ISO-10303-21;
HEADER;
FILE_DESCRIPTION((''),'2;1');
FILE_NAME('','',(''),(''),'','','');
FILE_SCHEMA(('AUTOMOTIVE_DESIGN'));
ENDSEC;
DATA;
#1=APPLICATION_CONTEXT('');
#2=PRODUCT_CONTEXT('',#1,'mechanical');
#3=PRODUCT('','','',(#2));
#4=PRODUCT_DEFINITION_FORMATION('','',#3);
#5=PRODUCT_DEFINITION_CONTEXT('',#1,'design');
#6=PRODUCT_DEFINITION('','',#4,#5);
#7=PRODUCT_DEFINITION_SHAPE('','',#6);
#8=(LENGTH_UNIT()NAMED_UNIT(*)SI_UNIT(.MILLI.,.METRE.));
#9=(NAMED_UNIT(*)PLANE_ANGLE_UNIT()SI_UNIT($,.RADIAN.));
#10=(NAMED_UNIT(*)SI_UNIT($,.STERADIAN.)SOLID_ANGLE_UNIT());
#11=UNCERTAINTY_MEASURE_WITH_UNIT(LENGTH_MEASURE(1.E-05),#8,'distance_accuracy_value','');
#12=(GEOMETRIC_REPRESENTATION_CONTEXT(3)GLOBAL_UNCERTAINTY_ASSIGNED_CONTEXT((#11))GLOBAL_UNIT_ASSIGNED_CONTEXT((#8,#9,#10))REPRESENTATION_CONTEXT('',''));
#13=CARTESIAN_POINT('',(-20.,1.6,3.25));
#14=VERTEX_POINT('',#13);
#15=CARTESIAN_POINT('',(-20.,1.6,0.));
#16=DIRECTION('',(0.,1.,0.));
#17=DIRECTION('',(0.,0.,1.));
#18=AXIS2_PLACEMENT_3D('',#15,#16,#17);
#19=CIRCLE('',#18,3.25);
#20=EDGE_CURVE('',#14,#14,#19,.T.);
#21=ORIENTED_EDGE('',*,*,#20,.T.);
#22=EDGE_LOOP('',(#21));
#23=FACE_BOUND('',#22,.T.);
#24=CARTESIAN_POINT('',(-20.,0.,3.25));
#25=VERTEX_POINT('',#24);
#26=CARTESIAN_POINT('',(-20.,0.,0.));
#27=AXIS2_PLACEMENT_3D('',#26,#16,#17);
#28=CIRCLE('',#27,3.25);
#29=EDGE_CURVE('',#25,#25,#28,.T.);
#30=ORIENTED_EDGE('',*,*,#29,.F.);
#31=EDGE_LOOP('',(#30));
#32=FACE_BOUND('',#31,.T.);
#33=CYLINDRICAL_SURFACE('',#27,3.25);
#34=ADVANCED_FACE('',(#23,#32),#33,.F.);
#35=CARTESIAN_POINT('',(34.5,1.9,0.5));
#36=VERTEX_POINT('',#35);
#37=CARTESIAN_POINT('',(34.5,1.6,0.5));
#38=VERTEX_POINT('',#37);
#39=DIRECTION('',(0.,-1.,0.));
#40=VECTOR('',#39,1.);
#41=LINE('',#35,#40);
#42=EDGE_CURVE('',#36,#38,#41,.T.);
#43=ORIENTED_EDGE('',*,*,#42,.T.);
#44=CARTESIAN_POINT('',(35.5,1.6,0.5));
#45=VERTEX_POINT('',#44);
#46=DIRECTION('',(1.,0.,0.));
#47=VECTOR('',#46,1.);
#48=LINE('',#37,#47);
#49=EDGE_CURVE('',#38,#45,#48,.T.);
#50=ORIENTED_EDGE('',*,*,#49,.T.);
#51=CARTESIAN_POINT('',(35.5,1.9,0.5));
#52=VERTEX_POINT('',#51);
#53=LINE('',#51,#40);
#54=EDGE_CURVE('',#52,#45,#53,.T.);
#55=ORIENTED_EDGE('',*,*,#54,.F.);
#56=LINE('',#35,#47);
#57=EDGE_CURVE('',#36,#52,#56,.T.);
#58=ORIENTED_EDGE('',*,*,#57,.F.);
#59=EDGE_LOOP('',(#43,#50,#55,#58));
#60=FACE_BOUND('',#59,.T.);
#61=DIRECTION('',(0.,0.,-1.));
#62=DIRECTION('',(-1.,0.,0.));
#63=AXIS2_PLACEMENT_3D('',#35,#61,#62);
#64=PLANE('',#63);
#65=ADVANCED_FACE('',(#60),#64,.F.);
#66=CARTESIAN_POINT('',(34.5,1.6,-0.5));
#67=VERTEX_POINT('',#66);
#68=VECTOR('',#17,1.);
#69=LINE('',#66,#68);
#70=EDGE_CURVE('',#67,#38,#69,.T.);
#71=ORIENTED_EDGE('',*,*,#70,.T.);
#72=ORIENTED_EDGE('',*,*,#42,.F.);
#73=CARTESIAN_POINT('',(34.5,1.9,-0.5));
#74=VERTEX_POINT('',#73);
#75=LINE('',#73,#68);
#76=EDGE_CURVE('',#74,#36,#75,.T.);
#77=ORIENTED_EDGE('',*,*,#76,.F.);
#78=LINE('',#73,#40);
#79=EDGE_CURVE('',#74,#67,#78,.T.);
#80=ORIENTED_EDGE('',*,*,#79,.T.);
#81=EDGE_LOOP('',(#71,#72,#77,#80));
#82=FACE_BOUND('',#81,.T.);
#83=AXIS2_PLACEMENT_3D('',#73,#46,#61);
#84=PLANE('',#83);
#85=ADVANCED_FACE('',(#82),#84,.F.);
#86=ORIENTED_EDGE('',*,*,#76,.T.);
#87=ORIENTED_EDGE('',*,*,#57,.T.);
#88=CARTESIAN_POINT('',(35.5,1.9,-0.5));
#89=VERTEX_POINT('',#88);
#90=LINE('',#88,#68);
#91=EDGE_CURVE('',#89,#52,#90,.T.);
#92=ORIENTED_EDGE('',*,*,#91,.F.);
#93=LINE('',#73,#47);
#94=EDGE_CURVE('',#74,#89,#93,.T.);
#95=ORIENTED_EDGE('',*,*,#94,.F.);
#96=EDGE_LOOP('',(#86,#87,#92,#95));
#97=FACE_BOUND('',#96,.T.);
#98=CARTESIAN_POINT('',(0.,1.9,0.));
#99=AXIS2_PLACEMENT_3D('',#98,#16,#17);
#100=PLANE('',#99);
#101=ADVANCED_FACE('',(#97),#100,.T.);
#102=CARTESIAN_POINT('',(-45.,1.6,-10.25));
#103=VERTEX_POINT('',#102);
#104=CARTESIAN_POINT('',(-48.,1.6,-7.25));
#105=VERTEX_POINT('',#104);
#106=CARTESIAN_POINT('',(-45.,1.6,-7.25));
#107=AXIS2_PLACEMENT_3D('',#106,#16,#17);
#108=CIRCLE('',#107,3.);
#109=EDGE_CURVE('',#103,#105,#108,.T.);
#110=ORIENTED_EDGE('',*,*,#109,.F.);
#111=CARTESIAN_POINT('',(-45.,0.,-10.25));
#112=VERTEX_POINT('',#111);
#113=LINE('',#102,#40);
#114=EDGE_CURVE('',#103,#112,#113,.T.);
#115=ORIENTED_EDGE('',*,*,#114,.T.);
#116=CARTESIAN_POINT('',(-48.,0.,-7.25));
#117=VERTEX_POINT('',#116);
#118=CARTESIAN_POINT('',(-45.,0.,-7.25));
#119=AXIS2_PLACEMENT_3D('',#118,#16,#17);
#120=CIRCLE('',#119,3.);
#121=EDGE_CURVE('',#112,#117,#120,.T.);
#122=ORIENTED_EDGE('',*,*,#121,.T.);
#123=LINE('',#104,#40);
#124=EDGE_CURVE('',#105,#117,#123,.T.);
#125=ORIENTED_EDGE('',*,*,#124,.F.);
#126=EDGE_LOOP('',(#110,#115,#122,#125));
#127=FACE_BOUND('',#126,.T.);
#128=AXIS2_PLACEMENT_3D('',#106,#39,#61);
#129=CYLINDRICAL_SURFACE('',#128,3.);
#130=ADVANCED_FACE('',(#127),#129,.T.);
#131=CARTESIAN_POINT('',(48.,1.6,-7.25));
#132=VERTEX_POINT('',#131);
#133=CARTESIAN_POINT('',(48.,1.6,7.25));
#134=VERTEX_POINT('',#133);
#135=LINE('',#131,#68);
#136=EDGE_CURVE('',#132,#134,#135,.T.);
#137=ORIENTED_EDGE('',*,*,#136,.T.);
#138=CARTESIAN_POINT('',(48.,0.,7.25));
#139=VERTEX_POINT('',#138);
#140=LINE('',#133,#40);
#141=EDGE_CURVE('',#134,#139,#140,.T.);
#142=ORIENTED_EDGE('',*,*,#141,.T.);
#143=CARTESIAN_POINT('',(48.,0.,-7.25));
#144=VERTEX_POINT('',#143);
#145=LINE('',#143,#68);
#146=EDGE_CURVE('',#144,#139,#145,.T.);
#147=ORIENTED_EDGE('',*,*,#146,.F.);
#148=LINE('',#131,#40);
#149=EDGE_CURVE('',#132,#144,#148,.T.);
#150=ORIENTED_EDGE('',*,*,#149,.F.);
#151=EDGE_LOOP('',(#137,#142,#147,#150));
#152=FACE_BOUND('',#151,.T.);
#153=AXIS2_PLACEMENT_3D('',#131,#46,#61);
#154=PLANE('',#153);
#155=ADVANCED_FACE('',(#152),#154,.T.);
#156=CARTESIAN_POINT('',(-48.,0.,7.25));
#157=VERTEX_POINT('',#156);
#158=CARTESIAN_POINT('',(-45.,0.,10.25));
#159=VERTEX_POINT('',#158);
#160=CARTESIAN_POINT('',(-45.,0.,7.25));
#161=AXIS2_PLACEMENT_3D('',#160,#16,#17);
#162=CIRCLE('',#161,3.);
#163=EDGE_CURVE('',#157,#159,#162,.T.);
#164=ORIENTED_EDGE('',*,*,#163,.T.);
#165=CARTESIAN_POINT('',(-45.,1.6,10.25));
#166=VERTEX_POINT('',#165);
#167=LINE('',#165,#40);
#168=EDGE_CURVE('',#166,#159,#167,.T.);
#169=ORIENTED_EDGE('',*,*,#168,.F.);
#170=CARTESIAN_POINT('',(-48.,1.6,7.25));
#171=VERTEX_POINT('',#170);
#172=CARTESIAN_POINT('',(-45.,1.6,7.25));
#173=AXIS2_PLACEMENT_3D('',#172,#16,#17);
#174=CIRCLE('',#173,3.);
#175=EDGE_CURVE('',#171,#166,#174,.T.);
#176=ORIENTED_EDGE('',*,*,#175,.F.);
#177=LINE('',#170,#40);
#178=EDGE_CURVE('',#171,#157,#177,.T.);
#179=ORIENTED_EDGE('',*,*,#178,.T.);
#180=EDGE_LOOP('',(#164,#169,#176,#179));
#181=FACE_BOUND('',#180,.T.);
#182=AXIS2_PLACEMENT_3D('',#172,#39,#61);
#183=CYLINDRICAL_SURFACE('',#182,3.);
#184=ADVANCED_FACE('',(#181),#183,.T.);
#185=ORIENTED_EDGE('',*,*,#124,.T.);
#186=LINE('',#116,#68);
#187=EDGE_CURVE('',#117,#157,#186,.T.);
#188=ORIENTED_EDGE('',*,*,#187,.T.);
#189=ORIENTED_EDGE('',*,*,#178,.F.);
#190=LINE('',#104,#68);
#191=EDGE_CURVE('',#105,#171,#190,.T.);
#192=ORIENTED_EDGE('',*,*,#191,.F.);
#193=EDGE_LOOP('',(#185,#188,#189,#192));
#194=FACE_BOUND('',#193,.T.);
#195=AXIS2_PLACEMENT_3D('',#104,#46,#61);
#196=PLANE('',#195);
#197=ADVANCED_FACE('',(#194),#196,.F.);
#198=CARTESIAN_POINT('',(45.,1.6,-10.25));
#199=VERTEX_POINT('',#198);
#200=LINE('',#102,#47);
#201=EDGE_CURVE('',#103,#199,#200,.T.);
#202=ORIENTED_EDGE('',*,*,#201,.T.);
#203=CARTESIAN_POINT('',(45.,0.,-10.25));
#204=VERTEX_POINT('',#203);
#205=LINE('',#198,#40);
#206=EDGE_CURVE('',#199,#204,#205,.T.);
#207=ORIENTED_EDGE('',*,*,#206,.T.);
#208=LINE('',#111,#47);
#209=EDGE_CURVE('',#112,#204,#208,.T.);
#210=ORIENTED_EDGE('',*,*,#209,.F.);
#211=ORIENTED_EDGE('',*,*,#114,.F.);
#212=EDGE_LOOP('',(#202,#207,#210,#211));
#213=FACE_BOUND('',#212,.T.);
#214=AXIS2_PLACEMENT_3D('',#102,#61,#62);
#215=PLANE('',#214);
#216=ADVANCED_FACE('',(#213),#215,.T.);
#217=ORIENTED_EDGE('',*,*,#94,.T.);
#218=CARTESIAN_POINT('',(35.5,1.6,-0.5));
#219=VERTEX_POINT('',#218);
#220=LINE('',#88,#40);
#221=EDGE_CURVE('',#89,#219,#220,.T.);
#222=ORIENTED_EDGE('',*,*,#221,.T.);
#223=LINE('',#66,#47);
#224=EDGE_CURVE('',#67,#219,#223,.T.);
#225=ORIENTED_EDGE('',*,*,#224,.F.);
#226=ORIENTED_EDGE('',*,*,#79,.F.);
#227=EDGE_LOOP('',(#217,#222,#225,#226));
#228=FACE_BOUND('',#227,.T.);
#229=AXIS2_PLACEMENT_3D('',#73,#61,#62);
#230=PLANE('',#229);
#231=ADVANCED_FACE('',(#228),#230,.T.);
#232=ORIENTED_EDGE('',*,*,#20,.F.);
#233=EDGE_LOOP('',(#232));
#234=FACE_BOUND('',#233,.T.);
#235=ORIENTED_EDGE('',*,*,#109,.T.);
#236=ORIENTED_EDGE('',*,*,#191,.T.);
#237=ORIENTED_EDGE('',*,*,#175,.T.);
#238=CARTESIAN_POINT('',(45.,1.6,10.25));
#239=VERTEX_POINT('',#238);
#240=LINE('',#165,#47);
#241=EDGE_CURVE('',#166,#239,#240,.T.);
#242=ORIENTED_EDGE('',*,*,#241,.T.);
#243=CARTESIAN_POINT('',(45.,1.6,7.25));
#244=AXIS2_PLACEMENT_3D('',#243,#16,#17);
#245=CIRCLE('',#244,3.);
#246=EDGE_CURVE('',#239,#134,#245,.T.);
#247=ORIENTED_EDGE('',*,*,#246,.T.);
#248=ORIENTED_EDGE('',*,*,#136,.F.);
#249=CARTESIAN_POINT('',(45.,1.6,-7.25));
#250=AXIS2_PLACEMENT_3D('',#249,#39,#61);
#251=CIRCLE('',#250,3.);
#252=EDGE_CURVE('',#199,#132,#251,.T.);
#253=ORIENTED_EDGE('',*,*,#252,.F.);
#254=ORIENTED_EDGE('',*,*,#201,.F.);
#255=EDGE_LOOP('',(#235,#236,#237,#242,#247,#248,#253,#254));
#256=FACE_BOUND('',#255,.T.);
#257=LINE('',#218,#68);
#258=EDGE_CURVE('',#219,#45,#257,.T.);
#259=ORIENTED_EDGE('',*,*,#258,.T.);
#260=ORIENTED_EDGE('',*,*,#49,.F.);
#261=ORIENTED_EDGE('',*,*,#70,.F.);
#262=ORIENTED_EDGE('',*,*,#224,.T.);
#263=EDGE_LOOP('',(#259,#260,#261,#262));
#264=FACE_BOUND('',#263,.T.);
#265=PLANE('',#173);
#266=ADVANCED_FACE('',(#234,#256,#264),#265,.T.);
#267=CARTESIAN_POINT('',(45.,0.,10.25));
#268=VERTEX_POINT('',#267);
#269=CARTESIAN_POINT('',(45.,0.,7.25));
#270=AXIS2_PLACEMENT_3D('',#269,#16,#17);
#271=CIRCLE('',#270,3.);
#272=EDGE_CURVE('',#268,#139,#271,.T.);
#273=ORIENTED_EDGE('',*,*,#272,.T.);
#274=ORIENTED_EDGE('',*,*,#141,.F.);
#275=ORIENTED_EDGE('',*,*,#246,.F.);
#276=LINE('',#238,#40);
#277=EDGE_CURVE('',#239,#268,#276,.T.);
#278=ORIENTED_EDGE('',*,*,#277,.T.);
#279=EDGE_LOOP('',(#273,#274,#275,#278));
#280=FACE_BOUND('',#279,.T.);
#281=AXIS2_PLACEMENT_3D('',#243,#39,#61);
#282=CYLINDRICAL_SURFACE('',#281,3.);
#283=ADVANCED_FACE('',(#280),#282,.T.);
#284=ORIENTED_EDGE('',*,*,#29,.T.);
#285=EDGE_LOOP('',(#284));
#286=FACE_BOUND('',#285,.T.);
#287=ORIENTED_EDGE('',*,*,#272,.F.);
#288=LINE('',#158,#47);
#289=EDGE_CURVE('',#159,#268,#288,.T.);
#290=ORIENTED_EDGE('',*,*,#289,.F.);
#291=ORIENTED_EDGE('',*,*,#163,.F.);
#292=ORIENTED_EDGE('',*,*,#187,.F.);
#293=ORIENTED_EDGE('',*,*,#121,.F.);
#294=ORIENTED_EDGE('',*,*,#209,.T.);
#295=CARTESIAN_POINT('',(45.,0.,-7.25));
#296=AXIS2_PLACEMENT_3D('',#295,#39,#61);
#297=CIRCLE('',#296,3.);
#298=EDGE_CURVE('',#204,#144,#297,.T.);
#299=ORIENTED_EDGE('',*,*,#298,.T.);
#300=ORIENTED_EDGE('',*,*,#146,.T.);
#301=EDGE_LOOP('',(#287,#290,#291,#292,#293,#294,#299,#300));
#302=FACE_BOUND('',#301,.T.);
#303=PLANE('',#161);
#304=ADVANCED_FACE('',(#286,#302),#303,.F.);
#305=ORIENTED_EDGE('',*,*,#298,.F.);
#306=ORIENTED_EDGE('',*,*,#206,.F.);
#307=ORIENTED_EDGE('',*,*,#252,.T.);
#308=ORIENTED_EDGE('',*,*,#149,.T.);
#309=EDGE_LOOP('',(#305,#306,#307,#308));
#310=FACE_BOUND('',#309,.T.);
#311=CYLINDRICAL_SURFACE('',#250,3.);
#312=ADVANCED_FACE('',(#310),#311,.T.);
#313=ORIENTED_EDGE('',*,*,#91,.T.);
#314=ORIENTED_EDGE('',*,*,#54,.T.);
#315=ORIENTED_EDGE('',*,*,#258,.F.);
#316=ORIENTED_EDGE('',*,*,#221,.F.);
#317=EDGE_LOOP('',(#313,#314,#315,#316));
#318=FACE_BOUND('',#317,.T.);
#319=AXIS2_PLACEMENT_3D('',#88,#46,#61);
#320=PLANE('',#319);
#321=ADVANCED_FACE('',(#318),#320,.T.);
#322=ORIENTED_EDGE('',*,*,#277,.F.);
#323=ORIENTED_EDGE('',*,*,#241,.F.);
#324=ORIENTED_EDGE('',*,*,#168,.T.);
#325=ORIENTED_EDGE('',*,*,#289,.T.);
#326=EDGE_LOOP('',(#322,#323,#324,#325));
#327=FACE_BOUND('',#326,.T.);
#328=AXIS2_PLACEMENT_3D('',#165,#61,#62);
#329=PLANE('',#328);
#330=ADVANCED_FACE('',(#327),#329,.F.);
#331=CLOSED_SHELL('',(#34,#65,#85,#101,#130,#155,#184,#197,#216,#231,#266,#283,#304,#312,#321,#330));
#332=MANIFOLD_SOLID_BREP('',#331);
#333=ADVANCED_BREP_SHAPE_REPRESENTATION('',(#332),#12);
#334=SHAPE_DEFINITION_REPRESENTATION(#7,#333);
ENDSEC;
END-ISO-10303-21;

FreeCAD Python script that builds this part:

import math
import FreeCAD as App
import Part
import Sketcher
from FreeCAD import Vector


def add_polygon(sketch, points):
    """Adds a closed chain of lines whose ends are joined by coincident constraints."""
    first, n = sketch.GeometryCount, len(points)
    for a, b in zip(points, points[1:] + points[:1]):
        sketch.addGeometry(Part.LineSegment(App.Vector(*a, 0), App.Vector(*b, 0)), False)
    for i in range(n):
        sketch.addConstraint(Sketcher.Constraint("Coincident", first + i, 2, first + (i + 1) % n, 1))

doc = App.newDocument("Part")
body = doc.addObject("PartDesign::Body", "Body")

# Sketch on XZ plane
sketch1 = body.newObject("Sketcher::SketchObject", "Sketch")
sketch1.AttachmentSupport = (doc.getObject("XZ_Plane"), [""])
sketch1.MapMode = "FlatFace"
sketch1.addGeometry(Part.LineSegment(Vector(45, -10.2, 0), Vector(-45, -10.2, 0)), False)
sketch1.addGeometry(Part.ArcOfCircle(Part.Circle(Vector(-45, -7.3, 0), Vector(0, 0, 1), 3), math.radians(180), math.radians(270)), False)
sketch1.addGeometry(Part.LineSegment(Vector(-48, -7.2, 0), Vector(-48, 7.2, 0)), False)
sketch1.addGeometry(Part.ArcOfCircle(Part.Circle(Vector(-45, 7.3, 0), Vector(0, 0, 1), 3), math.radians(90), math.radians(180)), False)
sketch1.addGeometry(Part.LineSegment(Vector(-45, 10.2, 0), Vector(45, 10.2, 0)), False)
sketch1.addGeometry(Part.ArcOfCircle(Part.Circle(Vector(45, 7.3, 0), Vector(0, 0, 1), 3), math.radians(0), math.radians(90)), False)
sketch1.addGeometry(Part.LineSegment(Vector(48, 7.2, 0), Vector(48, -7.2, 0)), False)
sketch1.addGeometry(Part.ArcOfCircle(Part.Circle(Vector(45, -7.3, 0), Vector(0, 0, 1), 3), math.radians(-90), math.radians(0)), False)
sketch1.addConstraint(Sketcher.Constraint("Tangent", 0, 2, 1, 2))
sketch1.addConstraint(Sketcher.Constraint("Tangent", 1, 1, 2, 1))
sketch1.addConstraint(Sketcher.Constraint("Tangent", 2, 2, 3, 2))
sketch1.addConstraint(Sketcher.Constraint("Tangent", 3, 1, 4, 1))
sketch1.addConstraint(Sketcher.Constraint("Tangent", 4, 2, 5, 2))
sketch1.addConstraint(Sketcher.Constraint("Tangent", 5, 1, 6, 1))
sketch1.addConstraint(Sketcher.Constraint("Tangent", 6, 2, 7, 2))
sketch1.addConstraint(Sketcher.Constraint("Tangent", 7, 1, 0, 1))
sketch1.addConstraint(Sketcher.Constraint("Horizontal", 0))
sketch1.addConstraint(Sketcher.Constraint("Vertical", 2))
sketch1.addConstraint(Sketcher.Constraint("Horizontal", 4))
sketch1.addConstraint(Sketcher.Constraint("Vertical", 6))
sketch1.addConstraint(Sketcher.Constraint("Equal", 1, 3))
sketch1.addConstraint(Sketcher.Constraint("Equal", 3, 5))
sketch1.addConstraint(Sketcher.Constraint("Equal", 5, 7))
sketch1.addConstraint(Sketcher.Constraint("Symmetric", 1, 3, 5, 3, -1, 1))
sketch1.addConstraint(Sketcher.Constraint("Radius", 1, 3.0))
sketch1.addConstraint(Sketcher.Constraint("DistanceX", 0, 2, 0, 1, 90.0))
sketch1.addConstraint(Sketcher.Constraint("DistanceY", 2, 1, 2, 2, 14.5))
pad1 = body.newObject("PartDesign::Pad", "Pad")
pad1.Profile = sketch1
pad1.Length = 1.6
pad1.Reversed = True

# Sketch on XZ plane
sketch2 = body.newObject("Sketcher::SketchObject", "Sketch001")
sketch2.AttachmentSupport = (doc.getObject("XZ_Plane"), [""])
sketch2.MapMode = "FlatFace"
sketch2.AttachmentOffset = App.Placement(Vector(0, 0, -1.6), App.Rotation())
add_polygon(sketch2, [(34.5, -0.5), (34.5, 0.5), (35.5, 0.5), (35.5, -0.5)])  # lines 0-3
sketch2.addConstraint(Sketcher.Constraint("Vertical", 0))
sketch2.addConstraint(Sketcher.Constraint("Horizontal", 1))
sketch2.addConstraint(Sketcher.Constraint("Vertical", 2))
sketch2.addConstraint(Sketcher.Constraint("Horizontal", 3))
sketch2.addConstraint(Sketcher.Constraint("Equal", 3, 0))
sketch2.addConstraint(Sketcher.Constraint("DistanceX", 1, 1, 1, 2, 1.0))
sketch2.addConstraint(Sketcher.Constraint("DistanceX", -1, 1, 0, 2, 34.5))
sketch2.addConstraint(Sketcher.Constraint("DistanceY", -1, 1, 0, 2, 0.5))
pad2 = body.newObject("PartDesign::Pad", "Pad001")
pad2.Profile = sketch2
pad2.Length = 0.3
pad2.Reversed = True

# Sketch on XZ plane
sketch3 = body.newObject("Sketcher::SketchObject", "Sketch002")
sketch3.AttachmentSupport = (doc.getObject("XZ_Plane"), [""])
sketch3.MapMode = "FlatFace"
sketch3.AttachmentOffset = App.Placement(Vector(0, 0, -1.6), App.Rotation())
sketch3.addGeometry(Part.Circle(Vector(-20, 0, 0), Vector(0, 0, 1), 3.2), False)
sketch3.addConstraint(Sketcher.Constraint("PointOnObject", 0, 3, -1))
sketch3.addConstraint(Sketcher.Constraint("Diameter", 0, 6.5))
sketch3.addConstraint(Sketcher.Constraint("DistanceX", 0, 3, -1, 1, 20.0))
pocket1 = body.newObject("PartDesign::Pocket", "Pocket")
pocket1.Profile = sketch3
pocket1.Type = "ThroughAll"
pocket1.Reversed = True

doc.recompute()
